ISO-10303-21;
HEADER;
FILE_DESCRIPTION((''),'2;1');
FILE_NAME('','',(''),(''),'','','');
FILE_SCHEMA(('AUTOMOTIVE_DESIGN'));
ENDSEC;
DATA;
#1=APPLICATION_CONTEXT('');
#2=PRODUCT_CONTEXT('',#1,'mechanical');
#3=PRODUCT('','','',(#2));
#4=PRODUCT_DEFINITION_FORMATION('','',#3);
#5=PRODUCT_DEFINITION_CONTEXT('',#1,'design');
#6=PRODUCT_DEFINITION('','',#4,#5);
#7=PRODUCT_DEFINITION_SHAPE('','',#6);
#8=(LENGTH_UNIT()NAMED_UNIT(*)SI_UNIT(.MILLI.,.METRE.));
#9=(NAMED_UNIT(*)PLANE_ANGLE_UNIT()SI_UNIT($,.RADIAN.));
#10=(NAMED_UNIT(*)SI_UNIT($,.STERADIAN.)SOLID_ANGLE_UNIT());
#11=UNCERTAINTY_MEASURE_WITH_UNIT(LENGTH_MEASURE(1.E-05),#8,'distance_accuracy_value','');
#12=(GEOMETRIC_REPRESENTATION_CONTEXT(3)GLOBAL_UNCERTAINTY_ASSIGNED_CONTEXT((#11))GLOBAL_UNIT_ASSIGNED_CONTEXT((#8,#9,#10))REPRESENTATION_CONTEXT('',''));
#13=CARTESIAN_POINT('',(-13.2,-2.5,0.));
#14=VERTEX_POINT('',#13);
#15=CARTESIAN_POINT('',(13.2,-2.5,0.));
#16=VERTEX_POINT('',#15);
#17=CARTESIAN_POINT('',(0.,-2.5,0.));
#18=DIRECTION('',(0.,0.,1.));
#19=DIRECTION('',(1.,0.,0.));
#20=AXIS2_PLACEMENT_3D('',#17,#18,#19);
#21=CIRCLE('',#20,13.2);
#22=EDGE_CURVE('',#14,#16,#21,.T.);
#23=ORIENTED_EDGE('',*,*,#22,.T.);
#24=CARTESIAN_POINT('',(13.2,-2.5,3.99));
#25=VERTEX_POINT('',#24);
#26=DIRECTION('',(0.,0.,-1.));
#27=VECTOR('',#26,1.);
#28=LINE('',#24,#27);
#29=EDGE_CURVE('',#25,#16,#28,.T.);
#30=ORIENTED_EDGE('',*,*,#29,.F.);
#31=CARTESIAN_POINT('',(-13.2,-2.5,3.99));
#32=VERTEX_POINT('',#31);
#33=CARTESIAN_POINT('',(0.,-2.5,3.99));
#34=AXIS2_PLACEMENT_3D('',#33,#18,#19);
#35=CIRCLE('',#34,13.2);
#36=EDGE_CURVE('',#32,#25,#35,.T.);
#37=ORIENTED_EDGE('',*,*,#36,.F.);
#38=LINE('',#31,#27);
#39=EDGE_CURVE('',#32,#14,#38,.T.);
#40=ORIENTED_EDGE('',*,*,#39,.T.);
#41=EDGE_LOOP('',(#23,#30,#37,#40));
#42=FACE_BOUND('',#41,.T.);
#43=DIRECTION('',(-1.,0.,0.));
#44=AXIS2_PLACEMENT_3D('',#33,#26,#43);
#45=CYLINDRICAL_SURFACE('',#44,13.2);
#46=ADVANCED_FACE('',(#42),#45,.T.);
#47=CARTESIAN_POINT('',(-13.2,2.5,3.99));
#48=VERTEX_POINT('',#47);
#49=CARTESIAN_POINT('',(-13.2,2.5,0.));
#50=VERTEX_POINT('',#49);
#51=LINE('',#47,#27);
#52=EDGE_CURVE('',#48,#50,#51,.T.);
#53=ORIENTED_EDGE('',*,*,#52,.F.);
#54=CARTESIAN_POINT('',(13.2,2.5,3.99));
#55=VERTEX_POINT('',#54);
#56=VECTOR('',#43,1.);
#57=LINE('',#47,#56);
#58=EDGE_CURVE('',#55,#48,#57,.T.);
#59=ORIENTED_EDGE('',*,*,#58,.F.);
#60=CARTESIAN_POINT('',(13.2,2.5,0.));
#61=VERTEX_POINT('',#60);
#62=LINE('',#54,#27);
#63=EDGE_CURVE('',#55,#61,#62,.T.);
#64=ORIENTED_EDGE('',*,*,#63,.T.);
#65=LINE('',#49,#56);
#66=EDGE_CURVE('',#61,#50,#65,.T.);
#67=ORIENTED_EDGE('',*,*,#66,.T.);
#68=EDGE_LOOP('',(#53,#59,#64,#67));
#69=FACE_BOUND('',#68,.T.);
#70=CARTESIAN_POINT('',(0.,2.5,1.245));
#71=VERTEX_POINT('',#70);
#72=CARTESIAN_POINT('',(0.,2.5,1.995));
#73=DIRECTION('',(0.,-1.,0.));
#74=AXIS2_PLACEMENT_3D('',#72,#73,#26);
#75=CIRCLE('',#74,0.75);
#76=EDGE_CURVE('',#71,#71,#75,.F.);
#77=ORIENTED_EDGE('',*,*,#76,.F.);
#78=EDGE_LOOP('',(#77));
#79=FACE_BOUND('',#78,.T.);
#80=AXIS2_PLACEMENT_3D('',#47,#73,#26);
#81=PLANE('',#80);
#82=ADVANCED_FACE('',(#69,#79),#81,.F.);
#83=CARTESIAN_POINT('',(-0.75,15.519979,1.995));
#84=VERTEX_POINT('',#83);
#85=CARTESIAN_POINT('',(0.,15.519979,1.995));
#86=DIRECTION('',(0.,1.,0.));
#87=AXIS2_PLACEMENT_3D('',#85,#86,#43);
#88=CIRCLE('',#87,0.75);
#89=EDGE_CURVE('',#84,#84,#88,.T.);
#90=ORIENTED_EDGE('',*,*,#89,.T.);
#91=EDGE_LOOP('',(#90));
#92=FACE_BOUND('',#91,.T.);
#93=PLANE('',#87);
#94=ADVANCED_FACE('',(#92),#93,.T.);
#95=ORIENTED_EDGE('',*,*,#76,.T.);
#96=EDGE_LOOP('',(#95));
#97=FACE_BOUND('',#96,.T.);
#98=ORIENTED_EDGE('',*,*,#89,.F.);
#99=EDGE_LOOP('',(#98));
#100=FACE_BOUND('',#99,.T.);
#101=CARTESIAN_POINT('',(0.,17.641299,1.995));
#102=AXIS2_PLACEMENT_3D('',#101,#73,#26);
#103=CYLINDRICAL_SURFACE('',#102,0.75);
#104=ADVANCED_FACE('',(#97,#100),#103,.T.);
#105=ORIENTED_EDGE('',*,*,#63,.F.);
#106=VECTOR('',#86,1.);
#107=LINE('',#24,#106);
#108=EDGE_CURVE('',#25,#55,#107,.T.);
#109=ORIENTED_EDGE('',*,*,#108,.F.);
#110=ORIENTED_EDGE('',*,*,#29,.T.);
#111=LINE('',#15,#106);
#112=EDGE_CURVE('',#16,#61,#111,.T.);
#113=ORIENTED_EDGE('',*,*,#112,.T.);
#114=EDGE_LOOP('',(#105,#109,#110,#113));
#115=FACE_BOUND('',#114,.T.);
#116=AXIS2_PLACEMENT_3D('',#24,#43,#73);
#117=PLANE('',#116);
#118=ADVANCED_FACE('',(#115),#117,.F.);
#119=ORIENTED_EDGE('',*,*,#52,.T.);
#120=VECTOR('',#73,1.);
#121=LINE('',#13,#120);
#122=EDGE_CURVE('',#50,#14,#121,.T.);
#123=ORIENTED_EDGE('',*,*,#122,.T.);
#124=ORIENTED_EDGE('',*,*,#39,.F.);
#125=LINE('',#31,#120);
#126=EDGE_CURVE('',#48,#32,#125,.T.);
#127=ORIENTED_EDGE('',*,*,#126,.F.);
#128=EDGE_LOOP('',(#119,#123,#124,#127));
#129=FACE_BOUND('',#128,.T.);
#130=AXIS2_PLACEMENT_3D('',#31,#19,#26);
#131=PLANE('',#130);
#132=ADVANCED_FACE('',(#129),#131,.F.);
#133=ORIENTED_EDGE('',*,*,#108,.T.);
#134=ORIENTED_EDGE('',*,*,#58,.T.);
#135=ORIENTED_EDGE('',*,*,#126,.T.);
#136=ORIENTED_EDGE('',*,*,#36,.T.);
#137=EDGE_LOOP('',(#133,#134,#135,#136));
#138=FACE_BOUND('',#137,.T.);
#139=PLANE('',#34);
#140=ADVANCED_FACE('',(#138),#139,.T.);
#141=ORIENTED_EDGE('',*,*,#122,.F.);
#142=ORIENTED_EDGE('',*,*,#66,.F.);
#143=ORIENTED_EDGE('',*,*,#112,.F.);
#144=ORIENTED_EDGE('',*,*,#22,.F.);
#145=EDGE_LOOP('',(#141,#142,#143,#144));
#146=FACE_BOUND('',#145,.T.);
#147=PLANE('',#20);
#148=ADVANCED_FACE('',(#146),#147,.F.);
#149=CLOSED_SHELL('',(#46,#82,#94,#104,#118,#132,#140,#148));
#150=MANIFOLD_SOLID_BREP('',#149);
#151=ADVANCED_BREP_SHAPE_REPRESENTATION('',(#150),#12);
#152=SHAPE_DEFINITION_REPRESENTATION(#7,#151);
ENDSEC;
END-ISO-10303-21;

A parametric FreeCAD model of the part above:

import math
import FreeCAD as App
import Part
import Sketcher

doc = App.newDocument("Part")
body = doc.addObject("PartDesign::Body", "Body")

# Sketch on XY plane
sketch1 = doc.addObject("Sketcher::SketchObject", "Sketch")
body.addObject(sketch1)
sketch1.AttachmentSupport = (doc.XY_Plane, [""])
sketch1.MapMode = "FlatFace"
sketch1.addGeometry([
    Part.LineSegment(App.Vector(-13, 2, 0), App.Vector(-13, -2, 0)),
    Part.ArcOfCircle(Part.Circle(App.Vector(0, -2, 0), App.Vector(0, 0, 1), 13), math.radians(180), math.radians(360)),
    Part.LineSegment(App.Vector(13, -2, 0), App.Vector(13, 2, 0)),
    Part.LineSegment(App.Vector(13, 2, 0), App.Vector(-13, 2, 0)),
], False)
sketch1.addConstraint([
    Sketcher.Constraint("Tangent", 0, 2, 1, 1),
    Sketcher.Constraint("Tangent", 1, 2, 2, 1),
    Sketcher.Constraint("Coincident", 2, 2, 3, 1),
    Sketcher.Constraint("Coincident", 3, 2, 0, 1),
    Sketcher.Constraint("Vertical", 0),
    Sketcher.Constraint("Vertical", 2),
    Sketcher.Constraint("Horizontal", 3),
    Sketcher.Constraint("Symmetric", 0, 2, 2, 2, -1, 1),
    Sketcher.Constraint("Radius", 1, 13.2),
    Sketcher.Constraint("DistanceY", 0, 2, 0, 1, 5.0),
])
pad1 = doc.addObject("PartDesign::Pad", "Pad")
body.addObject(pad1)
pad1.Profile = sketch1
pad1.Length = 3.99

# Sketch on XZ plane
sketch2 = doc.addObject("Sketcher::SketchObject", "Sketch001")
body.addObject(sketch2)
sketch2.AttachmentSupport = (doc.XZ_Plane, [""])
sketch2.MapMode = "FlatFace"
sketch2.AttachmentOffset = App.Placement(App.Vector(0, 0, -2.5), App.Rotation())
sketch2.addGeometry(Part.Circle(App.Vector(0, 2, 0), App.Vector(0, 0, 1), 0.8), False)
sketch2.addConstraint([
    Sketcher.Constraint("PointOnObject", 0, 3, -2),
    Sketcher.Constraint("Diameter", 0, 1.5),
    Sketcher.Constraint("DistanceY", -1, 1, 0, 3, 1.995),
])
pad2 = doc.addObject("PartDesign::Pad", "Pad001")
body.addObject(pad2)
pad2.Profile = sketch2
pad2.Length = 13.019979
pad2.Reversed = True

doc.recompute()
